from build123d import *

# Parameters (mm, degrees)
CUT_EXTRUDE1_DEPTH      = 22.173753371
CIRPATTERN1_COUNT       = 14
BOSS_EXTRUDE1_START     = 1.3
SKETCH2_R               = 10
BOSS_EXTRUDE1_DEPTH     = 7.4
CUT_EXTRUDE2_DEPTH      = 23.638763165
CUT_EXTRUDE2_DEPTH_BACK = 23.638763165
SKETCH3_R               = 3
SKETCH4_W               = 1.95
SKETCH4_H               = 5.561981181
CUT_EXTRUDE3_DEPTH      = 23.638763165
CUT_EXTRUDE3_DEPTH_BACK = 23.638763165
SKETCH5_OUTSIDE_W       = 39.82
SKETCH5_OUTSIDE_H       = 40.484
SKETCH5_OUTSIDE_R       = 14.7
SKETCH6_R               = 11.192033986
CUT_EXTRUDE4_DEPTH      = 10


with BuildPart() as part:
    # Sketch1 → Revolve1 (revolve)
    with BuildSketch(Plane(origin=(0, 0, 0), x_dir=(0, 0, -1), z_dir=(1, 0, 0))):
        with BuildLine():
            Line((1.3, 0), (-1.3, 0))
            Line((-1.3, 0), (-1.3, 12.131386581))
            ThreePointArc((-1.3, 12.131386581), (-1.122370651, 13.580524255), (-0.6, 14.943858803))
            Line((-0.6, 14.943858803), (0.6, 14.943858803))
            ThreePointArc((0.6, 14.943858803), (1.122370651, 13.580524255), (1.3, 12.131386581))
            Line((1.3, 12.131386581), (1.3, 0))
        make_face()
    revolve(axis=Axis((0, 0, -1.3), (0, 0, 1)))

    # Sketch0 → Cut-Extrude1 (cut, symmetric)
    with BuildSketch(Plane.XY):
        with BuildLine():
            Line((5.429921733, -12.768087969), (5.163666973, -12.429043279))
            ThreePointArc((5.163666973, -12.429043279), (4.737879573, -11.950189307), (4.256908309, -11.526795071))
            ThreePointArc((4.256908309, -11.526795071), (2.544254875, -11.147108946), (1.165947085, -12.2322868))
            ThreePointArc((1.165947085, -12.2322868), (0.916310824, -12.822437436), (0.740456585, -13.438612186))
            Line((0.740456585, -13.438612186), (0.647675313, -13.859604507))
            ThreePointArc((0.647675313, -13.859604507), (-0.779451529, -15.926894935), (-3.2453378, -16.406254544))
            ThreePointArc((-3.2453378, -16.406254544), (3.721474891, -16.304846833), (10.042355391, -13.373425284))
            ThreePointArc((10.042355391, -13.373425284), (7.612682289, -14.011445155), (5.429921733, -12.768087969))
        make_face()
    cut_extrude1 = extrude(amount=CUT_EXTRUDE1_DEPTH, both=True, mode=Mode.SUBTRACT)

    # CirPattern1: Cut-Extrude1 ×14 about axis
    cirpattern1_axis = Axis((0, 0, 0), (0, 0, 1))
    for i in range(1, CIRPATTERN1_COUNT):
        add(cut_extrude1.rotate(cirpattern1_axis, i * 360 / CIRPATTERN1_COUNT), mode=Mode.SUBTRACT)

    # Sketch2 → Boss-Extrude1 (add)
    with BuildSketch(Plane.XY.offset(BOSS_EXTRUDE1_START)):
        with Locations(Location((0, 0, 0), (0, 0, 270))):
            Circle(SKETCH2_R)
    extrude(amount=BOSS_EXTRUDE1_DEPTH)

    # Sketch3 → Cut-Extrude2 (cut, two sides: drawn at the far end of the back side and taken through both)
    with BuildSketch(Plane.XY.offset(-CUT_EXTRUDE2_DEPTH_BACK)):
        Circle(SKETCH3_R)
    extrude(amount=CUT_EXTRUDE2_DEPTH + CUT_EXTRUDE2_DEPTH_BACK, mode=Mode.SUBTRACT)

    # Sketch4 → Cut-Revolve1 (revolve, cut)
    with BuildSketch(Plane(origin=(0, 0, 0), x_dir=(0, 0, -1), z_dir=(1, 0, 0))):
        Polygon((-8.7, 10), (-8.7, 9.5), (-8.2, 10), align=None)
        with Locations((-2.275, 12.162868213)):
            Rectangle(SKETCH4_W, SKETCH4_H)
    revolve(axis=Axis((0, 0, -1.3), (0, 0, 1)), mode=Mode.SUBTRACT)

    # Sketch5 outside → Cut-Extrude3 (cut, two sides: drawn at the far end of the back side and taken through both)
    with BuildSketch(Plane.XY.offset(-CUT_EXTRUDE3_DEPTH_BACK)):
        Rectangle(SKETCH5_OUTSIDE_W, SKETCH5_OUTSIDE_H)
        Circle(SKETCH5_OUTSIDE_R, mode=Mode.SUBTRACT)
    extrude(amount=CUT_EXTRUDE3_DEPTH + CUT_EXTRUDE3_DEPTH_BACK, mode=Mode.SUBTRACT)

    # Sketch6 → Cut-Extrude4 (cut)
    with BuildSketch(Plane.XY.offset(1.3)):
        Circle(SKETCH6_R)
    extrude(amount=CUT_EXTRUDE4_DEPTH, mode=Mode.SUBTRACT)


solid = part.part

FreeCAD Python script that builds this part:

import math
import FreeCAD as App
import Part
import Sketcher
Q = App.Units.Quantity


def add_polygon(sketch, points):
    """Adds a closed chain of lines whose ends are joined by coincident constraints."""
    first, n = sketch.GeometryCount, len(points)
    for a, b in zip(points, points[1:] + points[:1]):
        sketch.addGeometry(Part.LineSegment(App.Vector(*a, 0), App.Vector(*b, 0)), False)
    for i in range(n):
        sketch.addConstraint(Sketcher.Constraint("Coincident", first + i, 2, first + (i + 1) % n, 1))

doc = App.newDocument("Part")
body = doc.addObject("PartDesign::Body", "Body")

sketch1 = body.newObject("Sketcher::SketchObject", "Sketch")
sketch1.AttachmentSupport = (doc.getObject("YZ_Plane"), [""])
sketch1.MapMode = "FlatFace"
sketch1.addGeometry([
    Part.LineSegment(App.Vector(0, 1.3, 0), App.Vector(0, -1.3, 0)),
    Part.LineSegment(App.Vector(0, -1.3, 0), App.Vector(12.1, -1.3, 0)),
    Part.ArcOfCircle(Part.Circle(App.Vector(12.1, 4.7, 0), App.Vector(0, 0, 1), 6), math.radians(-90), math.radians(-62)),
    Part.LineSegment(App.Vector(14.9, -0.6, 0), App.Vector(14.9, 0.6, 0)),
    Part.ArcOfCircle(Part.Circle(App.Vector(12.1, -4.7, 0), App.Vector(0, 0, 1), 6), math.radians(62), math.radians(90)),
    Part.LineSegment(App.Vector(12.1, 1.3, 0), App.Vector(0, 1.3, 0)),
], False)
sketch1.addConstraint([
    Sketcher.Constraint("Coincident", 0, 2, 1, 1),
    Sketcher.Constraint("Tangent", 1, 2, 2, 1),
    Sketcher.Constraint("Coincident", 2, 2, 3, 1),
    Sketcher.Constraint("Coincident", 3, 2, 4, 1),
    Sketcher.Constraint("Tangent", 4, 2, 5, 1),
    Sketcher.Constraint("Coincident", 5, 2, 0, 1),
    Sketcher.Constraint("Vertical", 0),
    Sketcher.Constraint("Horizontal", 1),
    Sketcher.Constraint("Vertical", 3),
    Sketcher.Constraint("Horizontal", 5),
    Sketcher.Constraint("Equal", 2, 4),
    Sketcher.Constraint("Symmetric", 0, 2, 5, 2, -1, 1),
    Sketcher.Constraint("Vertical", 2, 3, 4, 3),
    Sketcher.Constraint("Radius", 2, Q("6 mm")),
    Sketcher.Constraint("DistanceY", 0, 2, 0, 1, Q("2.6 mm")),
    Sketcher.Constraint("DistanceY", 3, 1, 3, 2, Q("1.2 mm")),
    Sketcher.Constraint("DistanceX", 1, 1, 1, 2, Q("12.131387 mm")),
])
revolution = body.newObject("PartDesign::Revolution", "Revolution")
revolution.Profile = sketch1
revolution.ReferenceAxis = (sketch1, ["V_Axis"])
revolution.Angle = 360

sketch2 = body.newObject("Sketcher::SketchObject", "Sketch001")
sketch2.AttachmentSupport = (doc.getObject("XY_Plane"), [""])
sketch2.MapMode = "FlatFace"
sketch2.addGeometry([
    Part.LineSegment(App.Vector(5.43, -12.77, 0), App.Vector(5.16, -12.43, 0)),
    Part.ArcOfCircle(Part.Circle(App.Vector(1.04, -15.67, 0), App.Vector(0, 0, 1), 5.25), math.radians(38.14), math.radians(52.14)),
    Part.ArcOfCircle(Part.Circle(App.Vector(3, -13.14, 0), App.Vector(0, 0, 1), 2.05), math.radians(52), math.radians(154)),
    Part.ArcOfCircle(Part.Circle(App.Vector(5.87, -14.57, 0), App.Vector(0, 0, 1), 5.25), math.radians(153.57), math.radians(167.57)),
    Part.LineSegment(App.Vector(0.74, -13.44, 0), App.Vector(0.65, -13.86, 0)),
    Part.ArcOfCircle(Part.Circle(App.Vector(-2.6, -13.14, 0), App.Vector(0, 0, 1), 3.33), math.radians(-101), math.radians(-12)),
    Part.ArcOfCircle(Part.Circle(App.Vector(0, 0, 0), App.Vector(0, 0, 1), 16.72), math.radians(-101), math.radians(-53)),
    Part.ArcOfCircle(Part.Circle(App.Vector(8.05, -10.71, 0), App.Vector(0, 0, 1), 3.33), math.radians(-142), math.radians(-53)),
], False)
sketch2.addConstraint([
    Sketcher.Constraint("Tangent", 0, 2, 1, 1),
    Sketcher.Constraint("Tangent", 1, 2, 2, 1),
    Sketcher.Constraint("Tangent", 2, 2, 3, 1),
    Sketcher.Constraint("Tangent", 3, 2, 4, 1),
    Sketcher.Constraint("Tangent", 4, 2, 5, 2),
    Sketcher.Constraint("Tangent", 5, 1, 6, 1),
    Sketcher.Constraint("Tangent", 6, 2, 7, 2),
    Sketcher.Constraint("Tangent", 7, 1, 0, 1),
    Sketcher.Constraint("Coincident", 6, 3, -1, 1),
    Sketcher.Constraint("Equal", 1, 3),
    Sketcher.Constraint("Equal", 5, 7),
    Sketcher.Constraint("Horizontal", 2, 3, 5, 3),
    Sketcher.Constraint("Equal", 0, 4),
    Sketcher.Constraint("DistanceX", -1, 1, 2, 3, Q("3 mm")),
    Sketcher.Constraint("DistanceX", 5, 3, -1, 1, Q("2.6 mm")),
    Sketcher.Constraint("Radius", 1, Q("5.2481 mm")),
    Sketcher.Constraint("Radius", 2, Q("2.0481 mm")),
    Sketcher.Constraint("Radius", 5, Q("3.325611 mm")),
    Sketcher.Constraint("Radius", 6, Q("16.724156 mm")),
    Sketcher.Constraint("DistanceX", 0, 2, 3, 3, Q("0.701901 mm")),
    Sketcher.Constraint("DistanceX", 4, 2, 1, 3, Q("0.388501 mm")),
])
pocket1 = body.newObject("PartDesign::Pocket", "Pocket")
pocket1.Profile = sketch2
pocket1.Length = 44.347507
pocket1.Midplane = True
doc.recompute()

polarpattern = body.newObject("PartDesign::PolarPattern", "PolarPattern")
polarpattern.Originals = [pocket1]
polarpattern.Axis = (doc.getObject("Z_Axis"), [""])
polarpattern.Angle = 360
polarpattern.Occurrences = 14
body.Tip = polarpattern

sketch3 = body.newObject("Sketcher::SketchObject", "Sketch002")
sketch3.AttachmentSupport = (doc.getObject("XY_Plane"), [""])
sketch3.MapMode = "FlatFace"
sketch3.AttachmentOffset = App.Placement(App.Vector(0, 0, 1.3), App.Rotation())
sketch3.addGeometry(Part.Circle(App.Vector(0, 0, 0), App.Vector(0, 0, 1), 10), False)
sketch3.addConstraint([
    Sketcher.Constraint("Coincident", 0, 3, -1, 1),
    Sketcher.Constraint("Diameter", 0, Q("20 mm")),
])
pad1 = body.newObject("PartDesign::Pad", "Pad")
pad1.Profile = sketch3
pad1.Length = 7.4

sketch4 = body.newObject("Sketcher::SketchObject", "Sketch003")
sketch4.AttachmentSupport = (doc.getObject("XY_Plane"), [""])
sketch4.MapMode = "FlatFace"
sketch4.addGeometry(Part.Circle(App.Vector(0, 0, 0), App.Vector(0, 0, 1), 3), False)
sketch4.addConstraint([
    Sketcher.Constraint("Coincident", 0, 3, -1, 1),
    Sketcher.Constraint("Diameter", 0, Q("6 mm")),
])
pocket2 = body.newObject("PartDesign::Pocket", "Pocket001")
pocket2.Profile = sketch4
pocket2.Type = "ThroughAll"
pocket2.Midplane = True

sketch5 = body.newObject("Sketcher::SketchObject", "Sketch004")
sketch5.AttachmentSupport = (doc.getObject("YZ_Plane"), [""])
sketch5.MapMode = "FlatFace"
add_polygon(sketch5, [(10, 8.7), (9.5, 8.7), (10, 8.2)])
add_polygon(sketch5, [(14.9, 3.2), (9.4, 3.2), (9.4, 1.3), (14.9, 1.3)])
sketch5.addConstraint([
    Sketcher.Constraint("Horizontal", 0),
    Sketcher.Constraint("Vertical", 2),
    Sketcher.Constraint("Horizontal", 3),
    Sketcher.Constraint("Vertical", 4),
    Sketcher.Constraint("Horizontal", 5),
    Sketcher.Constraint("Vertical", 6),
    Sketcher.Constraint("Equal", 0, 2),
    Sketcher.Constraint("DistanceX", 0, 2, 0, 1, Q("0.5 mm")),
    Sketcher.Constraint("DistanceX", -1, 1, 1, 2, Q("10 mm")),
    Sketcher.Constraint("DistanceY", 4, 2, 4, 1, Q("1.95 mm")),
    Sketcher.Constraint("DistanceY", -1, 1, 0, 2, Q("8.7 mm")),
    Sketcher.Constraint("DistanceY", -1, 1, 4, 2, Q("1.3 mm")),
    Sketcher.Constraint("DistanceX", 3, 2, 3, 1, Q("5.561981 mm")),
    Sketcher.Constraint("DistanceX", -1, 1, 5, 2, Q("14.943859 mm")),
])
groove = body.newObject("PartDesign::Groove", "Groove")
groove.Profile = sketch5
groove.ReferenceAxis = (sketch5, ["V_Axis"])
groove.Angle = 360

sketch6 = body.newObject("Sketcher::SketchObject", "Sketch005")
sketch6.AttachmentSupport = (doc.getObject("XY_Plane"), [""])
sketch6.MapMode = "FlatFace"
add_polygon(sketch6, [(-20, 20), (-20, -20), (20, -20), (20, 20)])
sketch6.addGeometry(Part.Circle(App.Vector(0, 0, 0), App.Vector(0, 0, 1), 15), False)
sketch6.addConstraint([
    Sketcher.Constraint("Vertical", 0),
    Sketcher.Constraint("Horizontal", 1),
    Sketcher.Constraint("Vertical", 2),
    Sketcher.Constraint("Horizontal", 3),
    Sketcher.Constraint("Coincident", 4, 3, -1, 1),
    Sketcher.Constraint("Symmetric", 0, 2, 2, 2, -1, 1),
    Sketcher.Constraint("Diameter", 4, Q("29.4 mm")),
    Sketcher.Constraint("DistanceX", 1, 1, 1, 2, Q("39.82 mm")),
    Sketcher.Constraint("DistanceY", 0, 2, 0, 1, Q("40.484 mm")),
])
pocket3 = body.newObject("PartDesign::Pocket", "Pocket002")
pocket3.Profile = sketch6
pocket3.Type = "ThroughAll"
pocket3.Midplane = True

sketch7 = body.newObject("Sketcher::SketchObject", "Sketch006")
sketch7.AttachmentSupport = (doc.getObject("XY_Plane"), [""])
sketch7.MapMode = "FlatFace"
sketch7.AttachmentOffset = App.Placement(App.Vector(0, 0, 1.3), App.Rotation())
sketch7.addGeometry(Part.Circle(App.Vector(0, 0, 0), App.Vector(0, 0, 1), 11), False)
sketch7.addConstraint([
    Sketcher.Constraint("Coincident", 0, 3, -1, 1),
    Sketcher.Constraint("Diameter", 0, Q("22.384068 mm")),
])
pocket4 = body.newObject("PartDesign::Pocket", "Pocket003")
pocket4.Profile = sketch7
pocket4.Length = 10
pocket4.Reversed = True

doc.recompute()
